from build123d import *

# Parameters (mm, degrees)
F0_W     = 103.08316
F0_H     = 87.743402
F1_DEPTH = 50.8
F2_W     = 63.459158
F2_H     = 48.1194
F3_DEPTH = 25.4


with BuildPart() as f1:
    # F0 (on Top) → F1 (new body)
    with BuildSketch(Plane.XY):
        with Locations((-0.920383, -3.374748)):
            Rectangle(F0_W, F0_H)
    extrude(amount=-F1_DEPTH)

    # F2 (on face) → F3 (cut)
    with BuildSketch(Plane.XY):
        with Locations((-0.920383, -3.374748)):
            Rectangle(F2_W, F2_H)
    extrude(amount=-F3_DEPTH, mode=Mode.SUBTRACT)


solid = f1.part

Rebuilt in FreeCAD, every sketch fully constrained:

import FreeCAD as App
import Part
import Sketcher
from FreeCAD import Vector
Q = App.Units.Quantity


def add_polygon(sketch, points):
    """Adds a closed chain of lines whose ends are joined by coincident constraints."""
    first, n = sketch.GeometryCount, len(points)
    for a, b in zip(points, points[1:] + points[:1]):
        sketch.addGeometry(Part.LineSegment(App.Vector(*a, 0), App.Vector(*b, 0)), False)
    for i in range(n):
        sketch.addConstraint(Sketcher.Constraint("Coincident", first + i, 2, first + (i + 1) % n, 1))

doc = App.newDocument("Part")
body = doc.addObject("PartDesign::Body", "Body")

# Sketch on XY plane
sketch1 = body.newObject("Sketcher::SketchObject", "Sketch")
sketch1.AttachmentSupport = (doc.getObject("XY_Plane"), [""])
sketch1.MapMode = "FlatFace"
add_polygon(sketch1, [(-52, 40), (-52, -47), (51, -47), (51, 40)])  # lines 0-3
sketch1.addConstraint(Sketcher.Constraint("Vertical", 0))
sketch1.addConstraint(Sketcher.Constraint("Horizontal", 1))
sketch1.addConstraint(Sketcher.Constraint("Vertical", 2))
sketch1.addConstraint(Sketcher.Constraint("Horizontal", 3))
sketch1.addConstraint(Sketcher.Constraint("DistanceX", 1, 1, 1, 2, Q("103.08316 mm")))
sketch1.addConstraint(Sketcher.Constraint("DistanceY", 0, 2, 0, 1, Q("87.743402 mm")))
sketch1.addConstraint(Sketcher.Constraint("DistanceY", 0, 2, -1, 1, Q("47.246449 mm")))
sketch1.addConstraint(Sketcher.Constraint("DistanceX", 0, 2, -1, 1, Q("52.461963 mm")))
pad1 = body.newObject("PartDesign::Pad", "Pad")
pad1.Profile = sketch1
pad1.Length = Q("2 in")
pad1.Reversed = True

# Sketch on XY plane
sketch2 = body.newObject("Sketcher::SketchObject", "Sketch001")
sketch2.AttachmentSupport = (doc.getObject("XY_Plane"), [""])
sketch2.MapMode = "FlatFace"
add_polygon(sketch2, [(-33, 21), (-33, -27), (31, -27), (31, 21)])  # lines 0-3
sketch2.addConstraint(Sketcher.Constraint("Vertical", 0))
sketch2.addConstraint(Sketcher.Constraint("Horizontal", 1))
sketch2.addConstraint(Sketcher.Constraint("Vertical", 2))
sketch2.addConstraint(Sketcher.Constraint("Horizontal", 3))
sketch2.addConstraint(Sketcher.Constraint("DistanceY", 0, 2, 0, 1, Q("48.1194 mm")))
sketch2.addConstraint(Sketcher.Constraint("DistanceX", 1, 1, 1, 2, Q("63.459158 mm")))
sketch2.addConstraint(Sketcher.Constraint("DistanceY", 0, 2, -1, 1, Q("27.434448 mm")))
sketch2.addConstraint(Sketcher.Constraint("DistanceX", 0, 2, -1, 1, Q("32.649962 mm")))
pocket1 = body.newObject("PartDesign::Pocket", "Pocket")
pocket1.Profile = sketch2
pocket1.Length = Q("1 in")

doc.recompute()
